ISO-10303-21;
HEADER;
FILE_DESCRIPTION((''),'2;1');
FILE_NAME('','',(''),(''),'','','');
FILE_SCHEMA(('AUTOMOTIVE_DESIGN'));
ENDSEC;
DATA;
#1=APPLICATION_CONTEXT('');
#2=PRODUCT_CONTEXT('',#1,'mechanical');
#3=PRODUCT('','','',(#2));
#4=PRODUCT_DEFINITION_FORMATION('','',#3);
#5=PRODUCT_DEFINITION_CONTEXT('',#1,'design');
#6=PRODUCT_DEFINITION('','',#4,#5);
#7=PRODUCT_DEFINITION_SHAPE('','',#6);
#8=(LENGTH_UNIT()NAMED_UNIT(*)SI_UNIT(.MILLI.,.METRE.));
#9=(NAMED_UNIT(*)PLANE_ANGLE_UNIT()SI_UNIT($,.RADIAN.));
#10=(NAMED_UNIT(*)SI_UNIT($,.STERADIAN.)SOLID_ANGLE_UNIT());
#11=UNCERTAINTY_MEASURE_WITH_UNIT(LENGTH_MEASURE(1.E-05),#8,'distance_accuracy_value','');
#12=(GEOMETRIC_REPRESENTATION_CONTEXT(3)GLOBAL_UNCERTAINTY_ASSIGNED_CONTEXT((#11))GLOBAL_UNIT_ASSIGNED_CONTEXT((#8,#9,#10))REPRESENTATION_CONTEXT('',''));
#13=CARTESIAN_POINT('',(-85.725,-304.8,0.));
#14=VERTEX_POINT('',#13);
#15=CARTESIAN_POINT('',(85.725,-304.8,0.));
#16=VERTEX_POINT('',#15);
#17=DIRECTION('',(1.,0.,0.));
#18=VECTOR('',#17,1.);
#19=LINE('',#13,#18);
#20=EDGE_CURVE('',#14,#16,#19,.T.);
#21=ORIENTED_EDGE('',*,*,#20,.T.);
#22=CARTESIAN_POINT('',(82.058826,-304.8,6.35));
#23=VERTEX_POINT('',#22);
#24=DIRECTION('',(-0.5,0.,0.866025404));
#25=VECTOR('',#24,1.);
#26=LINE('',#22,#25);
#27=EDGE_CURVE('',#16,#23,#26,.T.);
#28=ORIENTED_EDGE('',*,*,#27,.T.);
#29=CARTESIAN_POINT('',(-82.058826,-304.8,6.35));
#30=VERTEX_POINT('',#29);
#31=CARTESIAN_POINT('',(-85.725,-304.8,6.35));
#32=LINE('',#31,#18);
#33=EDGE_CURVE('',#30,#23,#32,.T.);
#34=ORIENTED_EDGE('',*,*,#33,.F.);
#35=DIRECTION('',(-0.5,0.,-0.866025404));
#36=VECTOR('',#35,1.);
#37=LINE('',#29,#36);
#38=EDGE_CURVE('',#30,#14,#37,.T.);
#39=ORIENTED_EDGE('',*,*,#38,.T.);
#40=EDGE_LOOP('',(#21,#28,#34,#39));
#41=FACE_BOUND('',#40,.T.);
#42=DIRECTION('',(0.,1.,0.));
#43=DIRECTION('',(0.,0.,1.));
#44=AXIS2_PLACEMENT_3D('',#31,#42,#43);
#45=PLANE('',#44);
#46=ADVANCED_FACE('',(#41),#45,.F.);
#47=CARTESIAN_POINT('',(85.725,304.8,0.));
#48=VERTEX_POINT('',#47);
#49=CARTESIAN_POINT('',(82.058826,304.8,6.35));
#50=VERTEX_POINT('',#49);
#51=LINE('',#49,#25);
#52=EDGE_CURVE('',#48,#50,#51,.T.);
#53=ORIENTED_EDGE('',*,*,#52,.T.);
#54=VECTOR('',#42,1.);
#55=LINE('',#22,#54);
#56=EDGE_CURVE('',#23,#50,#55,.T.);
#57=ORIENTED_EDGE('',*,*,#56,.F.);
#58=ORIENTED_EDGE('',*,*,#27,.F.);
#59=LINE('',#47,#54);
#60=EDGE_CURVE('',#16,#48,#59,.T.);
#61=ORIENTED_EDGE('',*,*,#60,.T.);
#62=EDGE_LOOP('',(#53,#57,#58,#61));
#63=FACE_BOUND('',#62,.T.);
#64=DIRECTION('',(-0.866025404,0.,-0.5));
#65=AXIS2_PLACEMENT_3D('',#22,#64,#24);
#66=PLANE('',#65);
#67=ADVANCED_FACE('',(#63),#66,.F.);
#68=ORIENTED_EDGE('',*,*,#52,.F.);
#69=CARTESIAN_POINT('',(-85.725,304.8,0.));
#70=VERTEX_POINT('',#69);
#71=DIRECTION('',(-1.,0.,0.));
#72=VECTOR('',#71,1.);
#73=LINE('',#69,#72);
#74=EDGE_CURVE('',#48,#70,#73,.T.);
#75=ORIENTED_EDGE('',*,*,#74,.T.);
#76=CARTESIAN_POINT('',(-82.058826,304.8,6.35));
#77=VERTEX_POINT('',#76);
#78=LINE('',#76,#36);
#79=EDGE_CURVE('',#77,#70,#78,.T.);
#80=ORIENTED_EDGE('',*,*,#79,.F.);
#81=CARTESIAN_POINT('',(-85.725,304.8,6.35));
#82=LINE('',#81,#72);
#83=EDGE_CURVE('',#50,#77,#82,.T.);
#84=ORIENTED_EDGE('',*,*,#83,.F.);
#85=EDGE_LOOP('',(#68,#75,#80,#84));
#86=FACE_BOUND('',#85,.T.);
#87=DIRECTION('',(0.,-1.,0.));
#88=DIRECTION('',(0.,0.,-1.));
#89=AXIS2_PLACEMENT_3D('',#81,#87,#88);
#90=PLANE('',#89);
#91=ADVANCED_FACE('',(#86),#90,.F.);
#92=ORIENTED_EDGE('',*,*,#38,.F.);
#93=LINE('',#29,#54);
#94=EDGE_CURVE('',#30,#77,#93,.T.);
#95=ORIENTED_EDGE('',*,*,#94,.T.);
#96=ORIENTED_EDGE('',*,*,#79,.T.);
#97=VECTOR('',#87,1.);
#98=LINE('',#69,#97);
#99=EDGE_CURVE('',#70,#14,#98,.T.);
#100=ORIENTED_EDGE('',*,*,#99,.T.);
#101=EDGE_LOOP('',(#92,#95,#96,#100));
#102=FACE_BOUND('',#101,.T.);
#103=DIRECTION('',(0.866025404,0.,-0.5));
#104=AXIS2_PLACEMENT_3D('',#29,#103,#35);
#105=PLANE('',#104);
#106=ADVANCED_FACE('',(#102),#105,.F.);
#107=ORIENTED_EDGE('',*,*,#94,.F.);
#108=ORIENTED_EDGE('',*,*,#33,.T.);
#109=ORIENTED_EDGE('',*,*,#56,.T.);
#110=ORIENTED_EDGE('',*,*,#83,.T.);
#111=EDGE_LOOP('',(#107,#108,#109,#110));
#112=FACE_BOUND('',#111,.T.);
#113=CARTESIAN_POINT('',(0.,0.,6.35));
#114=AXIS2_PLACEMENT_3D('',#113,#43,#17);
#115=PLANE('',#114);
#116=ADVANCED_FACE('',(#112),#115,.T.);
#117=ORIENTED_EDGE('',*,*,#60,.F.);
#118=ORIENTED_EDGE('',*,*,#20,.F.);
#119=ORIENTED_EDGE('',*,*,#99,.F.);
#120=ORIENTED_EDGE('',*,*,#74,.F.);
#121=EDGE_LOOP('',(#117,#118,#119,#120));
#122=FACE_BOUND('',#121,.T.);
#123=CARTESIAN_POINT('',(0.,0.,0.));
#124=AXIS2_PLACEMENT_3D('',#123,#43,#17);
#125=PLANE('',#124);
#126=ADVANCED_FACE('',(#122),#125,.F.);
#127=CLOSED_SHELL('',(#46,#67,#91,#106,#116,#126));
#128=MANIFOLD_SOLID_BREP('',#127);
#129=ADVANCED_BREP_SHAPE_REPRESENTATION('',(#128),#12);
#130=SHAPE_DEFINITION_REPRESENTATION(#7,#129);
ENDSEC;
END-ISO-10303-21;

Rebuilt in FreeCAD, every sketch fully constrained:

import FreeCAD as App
import Part
import Sketcher
from FreeCAD import Vector
Q = App.Units.Quantity

doc = App.newDocument("Part")
params = doc.addObject("Spreadsheet::Sheet", "Params")
for row, (alias, value) in enumerate([
    ("sketch1_height", "24 in"),
    ("sketch1_width", "6.75 in"),
    ("pad1_length", "0.25 in"),
    ("sketch2_height", "0.25 in"),
], start=1):
    params.set(f"A{row}", alias)
    params.set(f"B{row}", "=" + value)
    params.setAlias(f"B{row}", alias)

body = doc.addObject("PartDesign::Body", "Body")

# Sketch on XY plane
sketch1 = body.newObject("Sketcher::SketchObject", "Sketch")
sketch1.AttachmentSupport = (doc.getObject("XY_Plane"), [""])
sketch1.MapMode = "FlatFace"
sketch1.addGeometry([
    Part.LineSegment(Vector(-85.725, 304.8, 0), Vector(-85.725, -304.8, 0)),
    Part.LineSegment(Vector(-85.725, -304.8, 0), Vector(85.725, -304.8, 0)),
    Part.LineSegment(Vector(85.725, -304.8, 0), Vector(85.725, 304.8, 0)),
    Part.LineSegment(Vector(85.725, 304.8, 0), Vector(-85.725, 304.8, 0)),
], False)
sketch1.addConstraint([
    Sketcher.Constraint("Coincident", 0, 2, 1, 1),
    Sketcher.Constraint("Coincident", 1, 2, 2, 1),
    Sketcher.Constraint("Coincident", 2, 2, 3, 1),
    Sketcher.Constraint("Coincident", 3, 2, 0, 1),
    Sketcher.Constraint("Vertical", 0),
    Sketcher.Constraint("Horizontal", 1),
    Sketcher.Constraint("Vertical", 2),
    Sketcher.Constraint("Horizontal", 3),
    Sketcher.Constraint("Symmetric", 0, 2, 2, 2, -1, 1),
    Sketcher.Constraint("DistanceY", 0, 2, 0, 1, Q("24 in")),
    Sketcher.Constraint("DistanceX", 1, 1, 1, 2, Q("6.75 in")),
])
sketch1.setExpression("Constraints[9]", "Params.sketch1_height")
sketch1.setExpression("Constraints[10]", "Params.sketch1_width")
pad1 = body.newObject("PartDesign::Pad", "Pad")
pad1.Profile = sketch1
pad1.setExpression("Length", "Params.pad1_length")

# Sketch on XZ plane
sketch2 = body.newObject("Sketcher::SketchObject", "Sketch001")
sketch2.AttachmentSupport = (doc.getObject("XZ_Plane"), [""])
sketch2.MapMode = "FlatFace"
sketch2.AttachmentOffset = App.Placement(Vector(0, 0, -12 * 25.4), App.Rotation())
sketch2.addGeometry([
    Part.LineSegment(Vector(-85.725, 0, 0), Vector(-85.725, 6.35, 0)),  # 0
    Part.LineSegment(Vector(-85.725, 6.35, 0), Vector(-82.058826, 6.35, 0)),  # 1
    Part.LineSegment(Vector(-82.058826, 6.35, 0), Vector(-85.725, 0, 0)),  # 2
    Part.LineSegment(Vector(85.725, 0, 0), Vector(82.058826, 6.35, 0)),  # 3
    Part.LineSegment(Vector(82.058826, 6.35, 0), Vector(85.725, 6.35, 0)),  # 4
    Part.LineSegment(Vector(85.725, 6.35, 0), Vector(85.725, 0, 0)),  # 5
], False)
sketch2.addConstraint([
    Sketcher.Constraint("Coincident", 0, 2, 1, 1),
    Sketcher.Constraint("Coincident", 1, 2, 2, 1),
    Sketcher.Constraint("Coincident", 2, 2, 0, 1),
    Sketcher.Constraint("Coincident", 3, 2, 4, 1),
    Sketcher.Constraint("Coincident", 4, 2, 5, 1),
    Sketcher.Constraint("Coincident", 5, 2, 3, 1),
    Sketcher.Constraint("Vertical", 0),
    Sketcher.Constraint("Horizontal", 1),
    Sketcher.Constraint("Horizontal", 4),
    Sketcher.Constraint("Vertical", 5),
    Sketcher.Constraint("Symmetric", 2, 2, 5, 2, -1, 1),
    Sketcher.Constraint("Symmetric", 1, 2, 3, 2, -2),
    Sketcher.Constraint("PointOnObject", 2, 2, -1),
    Sketcher.Constraint("Angle", 2, Q("-120 deg")),
    Sketcher.Constraint("DistanceY", 0, 1, 0, 2, Q("0.25 in")),
    Sketcher.Constraint("DistanceX", 0, 2, 4, 2, Q("6.75 in")),
])
sketch2.setExpression("Constraints[14]", "Params.sketch2_height")
pocket1 = body.newObject("PartDesign::Pocket", "Pocket")
pocket1.Profile = sketch2
pocket1.Type = "ThroughAll"
pocket1.Reversed = True

doc.recompute()
